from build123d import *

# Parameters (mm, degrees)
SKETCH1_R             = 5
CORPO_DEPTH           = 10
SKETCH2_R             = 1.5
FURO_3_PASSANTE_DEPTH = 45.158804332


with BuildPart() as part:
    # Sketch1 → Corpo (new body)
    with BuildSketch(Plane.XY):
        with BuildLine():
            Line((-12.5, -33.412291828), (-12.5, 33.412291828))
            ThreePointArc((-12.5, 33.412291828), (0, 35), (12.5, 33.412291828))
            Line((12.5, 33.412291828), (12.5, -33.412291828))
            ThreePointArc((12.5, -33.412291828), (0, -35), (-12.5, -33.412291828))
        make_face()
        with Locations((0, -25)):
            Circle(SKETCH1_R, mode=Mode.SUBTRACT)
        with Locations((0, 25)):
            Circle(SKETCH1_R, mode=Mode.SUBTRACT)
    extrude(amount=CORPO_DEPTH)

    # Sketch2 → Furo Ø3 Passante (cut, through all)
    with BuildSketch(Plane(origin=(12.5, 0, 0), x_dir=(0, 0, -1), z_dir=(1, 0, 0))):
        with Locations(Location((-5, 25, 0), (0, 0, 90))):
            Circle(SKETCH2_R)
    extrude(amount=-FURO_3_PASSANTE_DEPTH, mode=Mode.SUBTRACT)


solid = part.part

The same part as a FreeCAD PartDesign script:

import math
import FreeCAD as App
import Part
import Sketcher

doc = App.newDocument("Part")
body = doc.addObject("PartDesign::Body", "Body")

# Sketch on XY plane
sketch1 = doc.addObject("Sketcher::SketchObject", "Sketch")
body.addObject(sketch1)
sketch1.AttachmentSupport = (doc.XY_Plane, [""])
sketch1.MapMode = "FlatFace"
sketch1.addGeometry(Part.LineSegment(App.Vector(-12, 33, 0), App.Vector(-12, -33, 0)), False)
sketch1.addGeometry(Part.ArcOfCircle(Part.Circle(App.Vector(0, 15, 0), App.Vector(0, 0, 1), 50), math.radians(-104), math.radians(-76)), False)
sketch1.addGeometry(Part.LineSegment(App.Vector(12, -33, 0), App.Vector(12, 33, 0)), False)
sketch1.addGeometry(Part.ArcOfCircle(Part.Circle(App.Vector(0, -15, 0), App.Vector(0, 0, 1), 50), math.radians(76), math.radians(104)), False)
sketch1.addGeometry(Part.Circle(App.Vector(0, -25, 0), App.Vector(0, 0, 1), 5), False)
sketch1.addGeometry(Part.Circle(App.Vector(0, 25, 0), App.Vector(0, 0, 1), 5), False)
sketch1.addConstraint(Sketcher.Constraint("Coincident", 0, 2, 1, 1))
sketch1.addConstraint(Sketcher.Constraint("Coincident", 1, 2, 2, 1))
sketch1.addConstraint(Sketcher.Constraint("Coincident", 2, 2, 3, 1))
sketch1.addConstraint(Sketcher.Constraint("Coincident", 3, 2, 0, 1))
sketch1.addConstraint(Sketcher.Constraint("Vertical", 0))
sketch1.addConstraint(Sketcher.Constraint("Vertical", 2))
sketch1.addConstraint(Sketcher.Constraint("Equal", 1, 3))
sketch1.addConstraint(Sketcher.Constraint("Equal", 4, 5))
sketch1.addConstraint(Sketcher.Constraint("Symmetric", 1, 3, 3, 3, -1, 1))
sketch1.addConstraint(Sketcher.Constraint("Symmetric", 4, 3, 5, 3, -1, 1))
sketch1.addConstraint(Sketcher.Constraint("Symmetric", 0, 2, 1, 2, -2))
sketch1.addConstraint(Sketcher.Constraint("PointOnObject", 4, 3, -2))
sketch1.addConstraint(Sketcher.Constraint("Diameter", 4, 10.0))
sketch1.addConstraint(Sketcher.Constraint("Radius", 1, 50.0))
sketch1.addConstraint(Sketcher.Constraint("DistanceY", -1, 1, 1, 3, 15.0))
sketch1.addConstraint(Sketcher.Constraint("DistanceY", 4, 3, -1, 1, 25.0))
sketch1.addConstraint(Sketcher.Constraint("DistanceX", 0, 2, 1, 2, 25.0))
pad1 = doc.addObject("PartDesign::Pad", "Pad")
body.addObject(pad1)
pad1.Profile = sketch1
pad1.Length = 10

# Sketch on YZ plane
sketch2 = doc.addObject("Sketcher::SketchObject", "Sketch001")
body.addObject(sketch2)
sketch2.AttachmentSupport = (doc.YZ_Plane, [""])
sketch2.MapMode = "FlatFace"
sketch2.AttachmentOffset = App.Placement(App.Vector(0, 0, 12.5), App.Rotation())
sketch2.addGeometry(Part.Circle(App.Vector(25, 5, 0), App.Vector(0, 0, 1), 1.5), False)
sketch2.addConstraint(Sketcher.Constraint("Diameter", 0, 3.0))
sketch2.addConstraint(Sketcher.Constraint("DistanceX", -1, 1, 0, 3, 25.0))
sketch2.addConstraint(Sketcher.Constraint("DistanceY", -1, 1, 0, 3, 5.0))
pocket1 = doc.addObject("PartDesign::Pocket", "Pocket")
body.addObject(pocket1)
pocket1.Profile = sketch2
pocket1.Type = "ThroughAll"

doc.recompute()
